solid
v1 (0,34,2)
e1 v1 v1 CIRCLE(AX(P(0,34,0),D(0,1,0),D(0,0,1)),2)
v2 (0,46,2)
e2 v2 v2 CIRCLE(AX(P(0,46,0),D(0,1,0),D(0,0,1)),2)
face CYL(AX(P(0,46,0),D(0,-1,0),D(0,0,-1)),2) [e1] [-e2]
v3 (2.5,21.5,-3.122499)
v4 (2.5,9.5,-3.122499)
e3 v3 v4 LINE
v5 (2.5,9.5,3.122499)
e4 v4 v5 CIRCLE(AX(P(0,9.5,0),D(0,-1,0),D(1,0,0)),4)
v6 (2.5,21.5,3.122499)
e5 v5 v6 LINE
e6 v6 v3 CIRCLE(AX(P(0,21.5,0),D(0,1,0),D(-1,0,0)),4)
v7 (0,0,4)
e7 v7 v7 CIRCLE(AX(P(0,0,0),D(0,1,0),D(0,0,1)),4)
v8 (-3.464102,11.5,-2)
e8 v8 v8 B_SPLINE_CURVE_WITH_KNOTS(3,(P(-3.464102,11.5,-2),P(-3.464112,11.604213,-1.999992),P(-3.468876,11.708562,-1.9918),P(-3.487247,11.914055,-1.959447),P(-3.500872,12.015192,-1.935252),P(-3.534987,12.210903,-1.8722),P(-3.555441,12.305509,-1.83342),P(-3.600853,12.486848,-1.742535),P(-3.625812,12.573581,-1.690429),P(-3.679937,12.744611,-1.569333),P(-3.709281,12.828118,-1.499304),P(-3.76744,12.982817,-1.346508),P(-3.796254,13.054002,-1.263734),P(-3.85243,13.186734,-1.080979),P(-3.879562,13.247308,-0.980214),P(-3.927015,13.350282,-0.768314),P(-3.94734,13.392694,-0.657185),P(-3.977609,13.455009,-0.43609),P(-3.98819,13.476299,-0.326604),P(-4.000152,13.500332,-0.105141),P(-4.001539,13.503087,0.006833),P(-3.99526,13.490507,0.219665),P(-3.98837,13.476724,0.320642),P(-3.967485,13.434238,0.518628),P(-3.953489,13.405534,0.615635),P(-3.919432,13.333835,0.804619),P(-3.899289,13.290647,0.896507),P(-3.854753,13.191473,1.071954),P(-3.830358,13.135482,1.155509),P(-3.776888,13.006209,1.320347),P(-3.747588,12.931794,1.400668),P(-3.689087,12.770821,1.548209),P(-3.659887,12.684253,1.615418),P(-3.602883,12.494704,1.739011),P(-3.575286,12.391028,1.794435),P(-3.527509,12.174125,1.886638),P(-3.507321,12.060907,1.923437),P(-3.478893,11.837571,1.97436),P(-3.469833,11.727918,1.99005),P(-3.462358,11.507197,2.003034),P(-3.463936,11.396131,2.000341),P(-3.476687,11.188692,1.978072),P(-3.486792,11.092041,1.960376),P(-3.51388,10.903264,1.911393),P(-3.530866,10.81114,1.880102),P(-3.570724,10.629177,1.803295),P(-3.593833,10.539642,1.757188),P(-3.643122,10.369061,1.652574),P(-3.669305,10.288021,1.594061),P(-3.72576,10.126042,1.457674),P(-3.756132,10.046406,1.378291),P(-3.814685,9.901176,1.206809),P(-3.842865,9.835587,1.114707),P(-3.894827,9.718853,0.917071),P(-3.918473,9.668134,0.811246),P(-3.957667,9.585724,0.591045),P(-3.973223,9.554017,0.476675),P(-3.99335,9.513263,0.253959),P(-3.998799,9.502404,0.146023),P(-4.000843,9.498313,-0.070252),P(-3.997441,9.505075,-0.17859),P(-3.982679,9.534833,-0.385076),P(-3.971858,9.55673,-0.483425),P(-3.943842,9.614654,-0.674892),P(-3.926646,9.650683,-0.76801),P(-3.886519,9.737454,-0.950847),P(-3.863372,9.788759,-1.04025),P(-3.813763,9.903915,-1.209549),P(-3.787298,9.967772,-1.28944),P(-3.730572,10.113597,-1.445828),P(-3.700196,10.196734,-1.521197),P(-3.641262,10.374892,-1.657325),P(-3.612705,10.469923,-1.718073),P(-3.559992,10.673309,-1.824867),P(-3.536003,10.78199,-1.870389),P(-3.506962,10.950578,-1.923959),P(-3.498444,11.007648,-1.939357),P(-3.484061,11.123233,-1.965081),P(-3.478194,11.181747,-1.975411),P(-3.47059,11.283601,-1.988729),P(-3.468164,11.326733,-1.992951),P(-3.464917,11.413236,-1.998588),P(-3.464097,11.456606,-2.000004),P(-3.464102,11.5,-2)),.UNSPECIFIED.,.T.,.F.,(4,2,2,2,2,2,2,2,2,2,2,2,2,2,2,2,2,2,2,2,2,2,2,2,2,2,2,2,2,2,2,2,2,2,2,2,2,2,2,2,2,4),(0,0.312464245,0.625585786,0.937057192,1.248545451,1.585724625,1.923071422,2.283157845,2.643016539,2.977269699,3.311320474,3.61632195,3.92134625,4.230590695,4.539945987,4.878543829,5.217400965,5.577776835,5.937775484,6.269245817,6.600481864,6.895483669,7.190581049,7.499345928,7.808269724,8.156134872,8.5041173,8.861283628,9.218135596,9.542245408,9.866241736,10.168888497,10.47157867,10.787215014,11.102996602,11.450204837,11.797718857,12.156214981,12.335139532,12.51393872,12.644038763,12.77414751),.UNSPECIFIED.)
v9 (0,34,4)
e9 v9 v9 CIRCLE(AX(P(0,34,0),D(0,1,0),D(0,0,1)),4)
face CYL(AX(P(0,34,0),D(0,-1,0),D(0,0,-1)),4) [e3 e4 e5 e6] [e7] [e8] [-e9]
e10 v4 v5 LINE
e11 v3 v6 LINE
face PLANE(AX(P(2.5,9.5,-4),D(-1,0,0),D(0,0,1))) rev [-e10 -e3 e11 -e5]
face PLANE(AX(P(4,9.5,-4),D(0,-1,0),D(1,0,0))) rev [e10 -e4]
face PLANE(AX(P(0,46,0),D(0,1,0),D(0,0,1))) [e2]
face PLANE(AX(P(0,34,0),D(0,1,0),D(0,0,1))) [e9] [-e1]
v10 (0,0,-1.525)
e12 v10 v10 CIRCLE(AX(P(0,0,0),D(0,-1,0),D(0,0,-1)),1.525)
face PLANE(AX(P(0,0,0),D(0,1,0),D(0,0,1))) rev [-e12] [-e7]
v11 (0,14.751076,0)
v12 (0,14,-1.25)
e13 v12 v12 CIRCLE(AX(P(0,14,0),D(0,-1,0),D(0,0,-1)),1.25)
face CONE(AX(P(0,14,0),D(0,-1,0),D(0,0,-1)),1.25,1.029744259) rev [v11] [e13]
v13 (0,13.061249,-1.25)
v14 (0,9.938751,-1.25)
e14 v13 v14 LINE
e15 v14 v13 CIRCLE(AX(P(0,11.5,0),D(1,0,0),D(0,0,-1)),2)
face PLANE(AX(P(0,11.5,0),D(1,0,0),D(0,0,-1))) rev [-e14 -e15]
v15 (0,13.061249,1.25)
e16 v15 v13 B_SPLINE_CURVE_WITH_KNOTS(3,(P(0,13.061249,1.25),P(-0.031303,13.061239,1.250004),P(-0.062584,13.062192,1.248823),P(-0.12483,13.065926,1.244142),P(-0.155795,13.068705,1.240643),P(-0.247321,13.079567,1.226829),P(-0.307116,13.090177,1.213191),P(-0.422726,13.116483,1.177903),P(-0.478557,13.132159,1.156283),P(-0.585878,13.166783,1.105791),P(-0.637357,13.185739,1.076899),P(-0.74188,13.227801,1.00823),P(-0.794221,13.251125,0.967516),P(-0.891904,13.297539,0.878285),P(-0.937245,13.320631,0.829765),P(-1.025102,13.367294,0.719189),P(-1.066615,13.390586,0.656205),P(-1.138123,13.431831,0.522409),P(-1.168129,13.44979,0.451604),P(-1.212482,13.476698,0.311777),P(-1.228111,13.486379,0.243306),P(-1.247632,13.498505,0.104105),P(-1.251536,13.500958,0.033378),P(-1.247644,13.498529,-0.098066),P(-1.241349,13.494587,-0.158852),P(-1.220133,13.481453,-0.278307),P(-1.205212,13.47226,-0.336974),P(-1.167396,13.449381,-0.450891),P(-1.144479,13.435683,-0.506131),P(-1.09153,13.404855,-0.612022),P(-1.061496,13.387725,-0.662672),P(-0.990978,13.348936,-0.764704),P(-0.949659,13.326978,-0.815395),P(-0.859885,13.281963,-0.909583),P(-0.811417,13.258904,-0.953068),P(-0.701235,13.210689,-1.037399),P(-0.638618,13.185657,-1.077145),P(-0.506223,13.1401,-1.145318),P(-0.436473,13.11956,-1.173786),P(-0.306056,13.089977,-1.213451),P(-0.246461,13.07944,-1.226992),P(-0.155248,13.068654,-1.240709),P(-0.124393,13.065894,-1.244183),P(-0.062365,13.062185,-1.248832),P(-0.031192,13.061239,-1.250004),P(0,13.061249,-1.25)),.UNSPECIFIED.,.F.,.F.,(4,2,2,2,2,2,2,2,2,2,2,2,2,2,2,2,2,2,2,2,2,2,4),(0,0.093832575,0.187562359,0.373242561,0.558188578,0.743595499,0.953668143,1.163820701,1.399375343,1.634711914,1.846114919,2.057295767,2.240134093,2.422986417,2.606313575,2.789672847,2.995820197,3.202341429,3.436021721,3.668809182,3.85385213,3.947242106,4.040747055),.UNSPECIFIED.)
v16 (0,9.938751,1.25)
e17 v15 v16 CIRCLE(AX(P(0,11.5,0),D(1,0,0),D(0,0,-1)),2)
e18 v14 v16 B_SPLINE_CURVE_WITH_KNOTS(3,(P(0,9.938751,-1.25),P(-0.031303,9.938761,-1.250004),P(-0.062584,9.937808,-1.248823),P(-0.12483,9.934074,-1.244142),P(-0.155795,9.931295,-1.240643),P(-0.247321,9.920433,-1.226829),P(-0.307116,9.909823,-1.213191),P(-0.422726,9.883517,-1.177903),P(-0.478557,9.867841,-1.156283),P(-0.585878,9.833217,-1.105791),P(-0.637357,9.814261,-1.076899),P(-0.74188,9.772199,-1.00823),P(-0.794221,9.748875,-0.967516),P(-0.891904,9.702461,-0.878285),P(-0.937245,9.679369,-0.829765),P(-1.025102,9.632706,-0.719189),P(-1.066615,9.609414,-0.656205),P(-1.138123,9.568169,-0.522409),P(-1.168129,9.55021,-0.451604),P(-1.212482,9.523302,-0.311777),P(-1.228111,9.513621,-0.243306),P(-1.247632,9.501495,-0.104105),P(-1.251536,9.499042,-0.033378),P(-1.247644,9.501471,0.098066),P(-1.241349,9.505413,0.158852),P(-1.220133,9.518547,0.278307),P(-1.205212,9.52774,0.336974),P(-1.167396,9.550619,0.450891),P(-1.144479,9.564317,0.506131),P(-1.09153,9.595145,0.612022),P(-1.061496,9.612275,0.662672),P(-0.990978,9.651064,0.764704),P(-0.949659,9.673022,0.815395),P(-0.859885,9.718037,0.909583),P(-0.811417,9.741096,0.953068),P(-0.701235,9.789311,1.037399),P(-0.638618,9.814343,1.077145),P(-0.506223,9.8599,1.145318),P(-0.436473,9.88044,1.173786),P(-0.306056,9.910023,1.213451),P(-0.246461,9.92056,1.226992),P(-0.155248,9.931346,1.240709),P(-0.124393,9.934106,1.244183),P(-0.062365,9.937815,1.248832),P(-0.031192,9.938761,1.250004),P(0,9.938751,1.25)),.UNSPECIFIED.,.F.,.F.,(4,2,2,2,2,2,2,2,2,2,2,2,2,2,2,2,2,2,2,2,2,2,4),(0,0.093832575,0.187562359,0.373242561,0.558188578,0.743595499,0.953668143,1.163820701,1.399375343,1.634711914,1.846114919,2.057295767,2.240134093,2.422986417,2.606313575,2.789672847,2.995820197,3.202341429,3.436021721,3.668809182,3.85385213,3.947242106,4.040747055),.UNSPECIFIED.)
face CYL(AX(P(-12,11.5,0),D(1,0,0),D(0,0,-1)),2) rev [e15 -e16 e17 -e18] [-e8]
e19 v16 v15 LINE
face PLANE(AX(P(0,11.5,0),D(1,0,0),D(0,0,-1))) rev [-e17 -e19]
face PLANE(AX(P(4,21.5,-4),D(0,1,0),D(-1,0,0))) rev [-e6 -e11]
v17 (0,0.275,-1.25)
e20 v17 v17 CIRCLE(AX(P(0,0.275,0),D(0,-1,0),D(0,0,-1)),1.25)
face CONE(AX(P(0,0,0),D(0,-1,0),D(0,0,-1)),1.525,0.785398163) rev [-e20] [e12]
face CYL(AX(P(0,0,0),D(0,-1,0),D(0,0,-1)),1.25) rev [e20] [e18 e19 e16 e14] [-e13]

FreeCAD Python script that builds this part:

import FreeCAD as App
import Part
import Sketcher

V = App.Vector


def add_polygon(sketch, points):
    """Adds a closed chain of lines whose ends are joined by coincident constraints."""
    first, n = sketch.GeometryCount, len(points)
    for a, b in zip(points, points[1:] + points[:1]):
        sketch.addGeometry(Part.LineSegment(App.Vector(*a, 0), App.Vector(*b, 0)), False)
    for i in range(n):
        sketch.addConstraint(Sketcher.Constraint("Coincident", first + i, 2, first + (i + 1) % n, 1))

doc = App.newDocument("Part")
body = doc.addObject("PartDesign::Body", "Body")

sketch1 = body.newObject("Sketcher::SketchObject", "Sketch")
sketch1.AttachmentSupport = (doc.getObject("XZ_Plane"), [""])
sketch1.MapMode = "FlatFace"
sketch1.addGeometry(Part.Circle(V(0, 0, 0), V(0, 0, 1), 4), False)
sketch1.addConstraint(Sketcher.Constraint("Coincident", 0, 3, -1, 1))
sketch1.addConstraint(Sketcher.Constraint("Diameter", 0, 8.0))
pad1 = body.newObject("PartDesign::Pad", "Pad")
pad1.Profile = sketch1
pad1.Length = 34
pad1.Reversed = True

sketch2 = body.newObject("Sketcher::SketchObject", "Sketch001")
sketch2.AttachmentSupport = (doc.getObject("XZ_Plane"), [""])
sketch2.MapMode = "FlatFace"
sketch2.AttachmentOffset = App.Placement(V(0, 0, -34), App.Rotation())
sketch2.addGeometry(Part.Circle(V(0, 0, 0), V(0, 0, 1), 2), False)
sketch2.addConstraint(Sketcher.Constraint("Coincident", 0, 3, -1, 1))
sketch2.addConstraint(Sketcher.Constraint("Diameter", 0, 4.0))
pad2 = body.newObject("PartDesign::Pad", "Pad001")
pad2.Profile = sketch2
pad2.Length = 12
pad2.Reversed = True

sketch3 = body.newObject("Sketcher::SketchObject", "Sketch002")
sketch3.AttachmentSupport = (doc.getObject("XY_Plane"), [""])
sketch3.MapMode = "FlatFace"
add_polygon(sketch3, [(2.5, 21.5), (2.5, 9.5), (4, 9.5), (4, 21.5)])
sketch3.addConstraint(Sketcher.Constraint("Vertical", 0))
sketch3.addConstraint(Sketcher.Constraint("Horizontal", 1))
sketch3.addConstraint(Sketcher.Constraint("Vertical", 2))
sketch3.addConstraint(Sketcher.Constraint("Horizontal", 3))
sketch3.addConstraint(Sketcher.Constraint("DistanceY", 0, 2, 0, 1, 12.0))
sketch3.addConstraint(Sketcher.Constraint("DistanceX", 1, 1, 1, 2, 1.5))
sketch3.addConstraint(Sketcher.Constraint("DistanceX", -1, 1, 1, 2, 4.0))
sketch3.addConstraint(Sketcher.Constraint("DistanceY", -1, 1, 0, 2, 9.5))
pocket1 = body.newObject("PartDesign::Pocket", "Pocket")
pocket1.Profile = sketch3
pocket1.Type = "ThroughAll"
pocket1.Midplane = True

sketch4 = body.newObject("Sketcher::SketchObject", "Sketch003")
sketch4.AttachmentSupport = (doc.getObject("XZ_Plane"), [""])
sketch4.MapMode = "FlatFace"
sketch4.addGeometry(Part.Circle(V(0, 0, 0), V(0, 0, 1), 1.2), False)
sketch4.addConstraint(Sketcher.Constraint("Coincident", 0, 3, -1, 1))
sketch4.addConstraint(Sketcher.Constraint("Diameter", 0, 2.5))
doc.recompute()
hole = body.newObject("PartDesign::Hole", "Hole")
hole.Profile = sketch4
hole.ThreadType = "None"
hole.Diameter = 2.5
hole.DepthType = "Dimension"
hole.Depth = 14
hole.DrillPoint = "Angled"
hole.DrillPointAngle = 118
hole.HoleCutType = "Countersink"
hole.HoleCutDiameter = 3.05
hole.HoleCutCountersinkAngle = 90

sketch5 = body.newObject("Sketcher::SketchObject", "Sketch004")
sketch5.AttachmentSupport = (doc.getObject("YZ_Plane"), [""])
sketch5.MapMode = "FlatFace"
sketch5.addGeometry(Part.Circle(V(11.5, 0, 0), V(0, 0, 1), 2), False)
sketch5.addConstraint(Sketcher.Constraint("PointOnObject", 0, 3, -1))
sketch5.addConstraint(Sketcher.Constraint("Diameter", 0, 4.0))
sketch5.addConstraint(Sketcher.Constraint("DistanceX", -1, 1, 0, 3, 11.5))
pocket2 = body.newObject("PartDesign::Pocket", "Pocket001")
pocket2.Profile = sketch5
pocket2.Length = 12

doc.recompute()
